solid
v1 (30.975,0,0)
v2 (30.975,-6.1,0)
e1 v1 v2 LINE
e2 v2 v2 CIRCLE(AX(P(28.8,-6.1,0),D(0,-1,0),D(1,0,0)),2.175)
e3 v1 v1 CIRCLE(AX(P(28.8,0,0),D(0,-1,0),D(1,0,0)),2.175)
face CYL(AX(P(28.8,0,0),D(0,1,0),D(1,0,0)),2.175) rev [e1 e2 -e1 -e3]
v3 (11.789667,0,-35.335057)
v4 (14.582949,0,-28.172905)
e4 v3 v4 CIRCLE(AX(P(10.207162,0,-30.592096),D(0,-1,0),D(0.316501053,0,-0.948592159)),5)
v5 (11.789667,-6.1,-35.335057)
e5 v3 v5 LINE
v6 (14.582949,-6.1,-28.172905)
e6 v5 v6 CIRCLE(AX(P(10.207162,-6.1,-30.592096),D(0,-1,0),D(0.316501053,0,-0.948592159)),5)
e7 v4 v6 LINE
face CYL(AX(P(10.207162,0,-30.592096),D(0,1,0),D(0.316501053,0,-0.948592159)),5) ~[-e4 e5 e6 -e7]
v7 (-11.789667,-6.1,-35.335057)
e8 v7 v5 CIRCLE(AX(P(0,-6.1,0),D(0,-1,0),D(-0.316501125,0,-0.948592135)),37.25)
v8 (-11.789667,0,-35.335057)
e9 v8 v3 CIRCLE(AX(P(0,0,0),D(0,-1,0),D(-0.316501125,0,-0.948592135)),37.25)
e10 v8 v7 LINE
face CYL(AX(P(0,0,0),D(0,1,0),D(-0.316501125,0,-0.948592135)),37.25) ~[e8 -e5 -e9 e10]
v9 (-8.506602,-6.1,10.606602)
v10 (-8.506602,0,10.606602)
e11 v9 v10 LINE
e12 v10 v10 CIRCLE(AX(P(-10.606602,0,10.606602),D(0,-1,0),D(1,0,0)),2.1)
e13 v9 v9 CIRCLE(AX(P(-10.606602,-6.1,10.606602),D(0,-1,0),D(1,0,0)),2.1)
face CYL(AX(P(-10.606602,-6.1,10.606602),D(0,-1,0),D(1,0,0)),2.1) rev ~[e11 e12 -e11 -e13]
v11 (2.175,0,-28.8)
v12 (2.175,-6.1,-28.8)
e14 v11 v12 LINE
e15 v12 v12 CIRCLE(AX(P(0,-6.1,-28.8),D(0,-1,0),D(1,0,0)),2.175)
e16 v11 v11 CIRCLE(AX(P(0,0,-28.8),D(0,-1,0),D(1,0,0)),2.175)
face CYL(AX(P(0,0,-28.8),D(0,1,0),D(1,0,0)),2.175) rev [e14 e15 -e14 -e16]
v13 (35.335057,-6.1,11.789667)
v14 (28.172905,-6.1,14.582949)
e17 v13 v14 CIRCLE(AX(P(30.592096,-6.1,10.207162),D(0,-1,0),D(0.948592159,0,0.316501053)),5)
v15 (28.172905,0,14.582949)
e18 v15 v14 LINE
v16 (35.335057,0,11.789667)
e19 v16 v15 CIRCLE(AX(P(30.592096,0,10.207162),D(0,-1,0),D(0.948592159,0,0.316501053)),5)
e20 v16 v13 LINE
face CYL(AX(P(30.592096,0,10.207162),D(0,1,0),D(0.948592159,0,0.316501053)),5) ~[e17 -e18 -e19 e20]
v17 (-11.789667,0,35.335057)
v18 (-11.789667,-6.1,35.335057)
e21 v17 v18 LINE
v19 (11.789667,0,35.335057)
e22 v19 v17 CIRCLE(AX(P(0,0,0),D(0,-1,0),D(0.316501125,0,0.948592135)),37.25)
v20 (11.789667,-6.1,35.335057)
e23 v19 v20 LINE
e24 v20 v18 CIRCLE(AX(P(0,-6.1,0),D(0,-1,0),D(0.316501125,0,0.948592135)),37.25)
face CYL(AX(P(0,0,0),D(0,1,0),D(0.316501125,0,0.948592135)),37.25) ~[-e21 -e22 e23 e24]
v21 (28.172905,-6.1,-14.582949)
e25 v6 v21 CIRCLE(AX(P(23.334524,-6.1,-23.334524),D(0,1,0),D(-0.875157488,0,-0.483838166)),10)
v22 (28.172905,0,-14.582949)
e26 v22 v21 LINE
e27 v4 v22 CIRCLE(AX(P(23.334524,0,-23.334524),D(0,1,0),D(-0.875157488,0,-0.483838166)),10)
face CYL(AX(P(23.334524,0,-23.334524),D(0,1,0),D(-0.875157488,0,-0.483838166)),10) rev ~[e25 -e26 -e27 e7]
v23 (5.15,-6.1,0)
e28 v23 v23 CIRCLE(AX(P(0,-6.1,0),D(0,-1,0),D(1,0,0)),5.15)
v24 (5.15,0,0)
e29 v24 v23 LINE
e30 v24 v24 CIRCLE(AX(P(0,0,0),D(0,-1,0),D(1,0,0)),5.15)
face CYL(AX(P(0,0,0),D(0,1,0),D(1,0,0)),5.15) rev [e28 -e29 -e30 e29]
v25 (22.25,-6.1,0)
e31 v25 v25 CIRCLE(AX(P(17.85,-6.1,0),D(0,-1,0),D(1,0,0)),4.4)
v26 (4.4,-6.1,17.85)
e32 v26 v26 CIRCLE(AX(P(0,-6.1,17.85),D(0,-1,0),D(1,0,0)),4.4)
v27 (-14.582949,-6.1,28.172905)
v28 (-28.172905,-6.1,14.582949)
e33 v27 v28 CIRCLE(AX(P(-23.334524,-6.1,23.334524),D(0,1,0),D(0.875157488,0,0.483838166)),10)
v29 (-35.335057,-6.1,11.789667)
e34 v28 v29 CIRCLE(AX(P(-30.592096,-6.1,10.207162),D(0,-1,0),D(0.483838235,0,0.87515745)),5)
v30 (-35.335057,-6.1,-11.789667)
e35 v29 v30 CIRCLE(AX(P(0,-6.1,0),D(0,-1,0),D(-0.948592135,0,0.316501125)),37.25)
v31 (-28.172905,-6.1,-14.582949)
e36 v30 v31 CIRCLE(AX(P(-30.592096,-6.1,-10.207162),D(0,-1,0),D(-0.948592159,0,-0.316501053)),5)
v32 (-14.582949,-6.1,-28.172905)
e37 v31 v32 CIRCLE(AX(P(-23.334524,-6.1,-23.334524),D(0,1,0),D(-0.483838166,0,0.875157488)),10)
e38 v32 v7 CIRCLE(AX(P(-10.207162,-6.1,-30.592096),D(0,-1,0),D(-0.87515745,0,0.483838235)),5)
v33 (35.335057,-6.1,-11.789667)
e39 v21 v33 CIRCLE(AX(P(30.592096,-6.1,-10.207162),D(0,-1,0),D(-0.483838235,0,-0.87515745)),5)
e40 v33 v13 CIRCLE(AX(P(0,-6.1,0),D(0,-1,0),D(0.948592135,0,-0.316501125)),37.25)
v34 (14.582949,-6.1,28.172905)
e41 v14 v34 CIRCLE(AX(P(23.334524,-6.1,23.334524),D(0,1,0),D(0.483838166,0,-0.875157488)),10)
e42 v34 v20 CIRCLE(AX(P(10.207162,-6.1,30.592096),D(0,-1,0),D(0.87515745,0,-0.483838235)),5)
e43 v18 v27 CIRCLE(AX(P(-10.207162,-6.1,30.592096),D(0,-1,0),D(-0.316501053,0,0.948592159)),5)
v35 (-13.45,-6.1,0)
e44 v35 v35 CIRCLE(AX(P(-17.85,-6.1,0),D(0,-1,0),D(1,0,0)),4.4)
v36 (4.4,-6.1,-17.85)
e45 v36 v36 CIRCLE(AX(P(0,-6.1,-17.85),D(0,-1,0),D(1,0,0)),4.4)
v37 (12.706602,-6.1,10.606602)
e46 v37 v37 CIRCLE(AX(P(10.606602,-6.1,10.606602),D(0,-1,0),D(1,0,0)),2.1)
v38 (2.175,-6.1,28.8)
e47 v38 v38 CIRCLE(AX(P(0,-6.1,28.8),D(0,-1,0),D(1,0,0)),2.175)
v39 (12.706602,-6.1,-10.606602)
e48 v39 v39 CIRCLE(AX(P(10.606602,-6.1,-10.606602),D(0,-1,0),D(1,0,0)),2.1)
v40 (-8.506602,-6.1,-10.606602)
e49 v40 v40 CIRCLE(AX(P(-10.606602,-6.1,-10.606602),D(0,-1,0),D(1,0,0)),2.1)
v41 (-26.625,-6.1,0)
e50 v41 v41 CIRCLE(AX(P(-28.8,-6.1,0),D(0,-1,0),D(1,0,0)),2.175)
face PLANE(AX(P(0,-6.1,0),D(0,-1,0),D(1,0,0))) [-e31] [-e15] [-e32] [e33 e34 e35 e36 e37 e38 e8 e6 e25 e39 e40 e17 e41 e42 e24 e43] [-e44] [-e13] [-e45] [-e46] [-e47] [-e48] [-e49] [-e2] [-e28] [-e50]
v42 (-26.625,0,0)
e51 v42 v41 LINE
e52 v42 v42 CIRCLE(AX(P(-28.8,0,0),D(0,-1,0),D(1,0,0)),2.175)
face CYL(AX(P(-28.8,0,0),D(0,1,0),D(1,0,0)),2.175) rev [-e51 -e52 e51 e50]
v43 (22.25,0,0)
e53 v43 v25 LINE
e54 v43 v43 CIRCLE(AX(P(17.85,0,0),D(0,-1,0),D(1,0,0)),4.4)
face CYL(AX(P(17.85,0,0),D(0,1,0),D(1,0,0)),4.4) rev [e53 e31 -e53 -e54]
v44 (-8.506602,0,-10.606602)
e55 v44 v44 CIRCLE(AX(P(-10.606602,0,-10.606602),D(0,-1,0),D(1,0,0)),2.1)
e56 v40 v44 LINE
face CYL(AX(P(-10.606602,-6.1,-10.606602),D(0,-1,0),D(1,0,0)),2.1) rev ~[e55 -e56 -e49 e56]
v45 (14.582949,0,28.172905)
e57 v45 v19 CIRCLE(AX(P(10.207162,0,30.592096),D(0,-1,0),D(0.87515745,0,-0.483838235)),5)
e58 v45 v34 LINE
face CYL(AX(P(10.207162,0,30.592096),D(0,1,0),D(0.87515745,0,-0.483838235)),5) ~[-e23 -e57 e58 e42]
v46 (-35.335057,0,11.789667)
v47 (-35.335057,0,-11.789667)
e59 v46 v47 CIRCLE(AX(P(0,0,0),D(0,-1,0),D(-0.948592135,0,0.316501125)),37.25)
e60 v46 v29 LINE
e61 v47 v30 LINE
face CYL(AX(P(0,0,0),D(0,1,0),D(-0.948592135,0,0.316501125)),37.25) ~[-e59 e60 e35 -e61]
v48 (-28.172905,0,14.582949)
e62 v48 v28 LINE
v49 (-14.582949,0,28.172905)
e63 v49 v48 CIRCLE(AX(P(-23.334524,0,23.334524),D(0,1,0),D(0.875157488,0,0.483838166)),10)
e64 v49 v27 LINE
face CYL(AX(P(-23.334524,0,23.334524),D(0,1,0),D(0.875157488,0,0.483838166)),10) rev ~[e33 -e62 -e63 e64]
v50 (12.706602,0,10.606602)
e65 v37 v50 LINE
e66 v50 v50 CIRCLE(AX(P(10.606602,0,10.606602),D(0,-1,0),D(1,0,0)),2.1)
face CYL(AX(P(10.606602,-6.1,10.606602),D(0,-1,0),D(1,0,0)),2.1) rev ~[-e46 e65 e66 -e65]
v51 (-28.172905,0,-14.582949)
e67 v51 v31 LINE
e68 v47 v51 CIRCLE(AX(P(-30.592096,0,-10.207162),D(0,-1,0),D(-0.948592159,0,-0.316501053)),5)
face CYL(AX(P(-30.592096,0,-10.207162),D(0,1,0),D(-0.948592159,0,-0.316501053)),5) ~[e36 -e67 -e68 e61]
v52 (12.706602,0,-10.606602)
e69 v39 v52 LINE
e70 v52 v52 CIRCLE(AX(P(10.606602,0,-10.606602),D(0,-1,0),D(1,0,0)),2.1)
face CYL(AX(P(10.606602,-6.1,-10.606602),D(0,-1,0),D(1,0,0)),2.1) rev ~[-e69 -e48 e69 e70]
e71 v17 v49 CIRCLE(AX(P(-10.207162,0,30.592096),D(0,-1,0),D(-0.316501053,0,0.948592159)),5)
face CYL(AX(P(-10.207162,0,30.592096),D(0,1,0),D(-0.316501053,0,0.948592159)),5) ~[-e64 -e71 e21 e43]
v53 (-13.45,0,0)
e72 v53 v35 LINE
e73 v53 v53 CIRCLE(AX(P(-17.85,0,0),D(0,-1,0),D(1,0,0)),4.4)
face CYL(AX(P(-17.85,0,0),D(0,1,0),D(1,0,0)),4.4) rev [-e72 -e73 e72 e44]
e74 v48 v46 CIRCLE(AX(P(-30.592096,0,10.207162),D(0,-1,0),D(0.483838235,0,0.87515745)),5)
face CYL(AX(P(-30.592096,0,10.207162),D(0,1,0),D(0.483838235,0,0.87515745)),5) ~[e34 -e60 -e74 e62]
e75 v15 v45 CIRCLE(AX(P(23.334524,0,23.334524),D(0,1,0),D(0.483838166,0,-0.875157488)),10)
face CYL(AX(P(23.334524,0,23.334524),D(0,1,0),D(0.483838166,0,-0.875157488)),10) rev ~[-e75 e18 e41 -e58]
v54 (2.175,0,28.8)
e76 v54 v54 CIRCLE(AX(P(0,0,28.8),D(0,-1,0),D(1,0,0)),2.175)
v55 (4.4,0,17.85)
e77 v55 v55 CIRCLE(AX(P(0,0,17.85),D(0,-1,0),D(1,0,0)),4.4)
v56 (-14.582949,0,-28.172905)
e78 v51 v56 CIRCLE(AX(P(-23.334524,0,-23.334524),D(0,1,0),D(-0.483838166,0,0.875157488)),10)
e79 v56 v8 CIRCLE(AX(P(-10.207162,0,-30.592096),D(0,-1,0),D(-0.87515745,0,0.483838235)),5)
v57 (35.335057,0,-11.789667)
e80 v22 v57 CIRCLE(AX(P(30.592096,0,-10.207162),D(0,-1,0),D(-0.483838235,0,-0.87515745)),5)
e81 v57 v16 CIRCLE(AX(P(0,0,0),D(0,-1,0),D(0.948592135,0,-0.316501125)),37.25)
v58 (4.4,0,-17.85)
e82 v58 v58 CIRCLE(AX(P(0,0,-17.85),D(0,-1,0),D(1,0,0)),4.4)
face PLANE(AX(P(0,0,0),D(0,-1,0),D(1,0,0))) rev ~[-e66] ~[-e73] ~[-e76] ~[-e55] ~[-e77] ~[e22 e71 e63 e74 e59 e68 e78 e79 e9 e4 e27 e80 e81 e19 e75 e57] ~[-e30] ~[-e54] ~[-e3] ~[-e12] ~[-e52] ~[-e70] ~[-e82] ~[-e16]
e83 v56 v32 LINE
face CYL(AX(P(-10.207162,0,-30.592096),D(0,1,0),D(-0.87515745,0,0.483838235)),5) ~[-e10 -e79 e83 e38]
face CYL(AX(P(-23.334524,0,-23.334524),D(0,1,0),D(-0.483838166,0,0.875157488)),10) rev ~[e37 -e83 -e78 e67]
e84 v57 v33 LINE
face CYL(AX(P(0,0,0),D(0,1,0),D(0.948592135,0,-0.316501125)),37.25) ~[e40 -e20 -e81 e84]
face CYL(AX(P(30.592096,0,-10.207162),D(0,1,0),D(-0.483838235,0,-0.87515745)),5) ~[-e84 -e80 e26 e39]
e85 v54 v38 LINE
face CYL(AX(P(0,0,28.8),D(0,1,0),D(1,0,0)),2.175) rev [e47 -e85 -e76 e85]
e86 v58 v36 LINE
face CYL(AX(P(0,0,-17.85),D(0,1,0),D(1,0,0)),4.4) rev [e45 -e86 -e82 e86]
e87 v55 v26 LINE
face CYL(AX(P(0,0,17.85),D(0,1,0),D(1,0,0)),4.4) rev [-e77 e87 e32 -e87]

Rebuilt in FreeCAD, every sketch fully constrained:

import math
import FreeCAD as App
import Part
import Sketcher

V = App.Vector
Q = App.Units.Quantity

doc = App.newDocument("Part")
body = doc.addObject("PartDesign::Body", "Body")

# Sketch on XZ plane
sketch1 = body.newObject("Sketcher::SketchObject", "Sketch")
sketch1.AttachmentSupport = (doc.getObject("XZ_Plane"), [""])
sketch1.MapMode = "FlatFace"
sketch1.addGeometry(Part.ArcOfCircle(Part.Circle(V(-30.6, 10.2, 0), V(0, 0, 1), 5), math.radians(61), math.radians(162)), False)
sketch1.addGeometry(Part.ArcOfCircle(Part.Circle(V(0, 0, 0), V(0, 0, 1), 37.3), math.radians(162), math.radians(198)), False)
sketch1.addGeometry(Part.ArcOfCircle(Part.Circle(V(-30.6, -10.2, 0), V(0, 0, 1), 5), math.radians(-162), math.radians(-61)), False)
sketch1.addGeometry(Part.ArcOfCircle(Part.Circle(V(-23.3, -23.3, 0), V(0, 0, 1), 10), math.radians(-29), math.radians(119)), False)
sketch1.addGeometry(Part.ArcOfCircle(Part.Circle(V(-10.2, -30.6, 0), V(0, 0, 1), 5), math.radians(151), math.radians(252)), False)
sketch1.addGeometry(Part.ArcOfCircle(Part.Circle(V(0, 0, 0), V(0, 0, 1), 37.3), math.radians(-108), math.radians(-72)), False)
sketch1.addGeometry(Part.ArcOfCircle(Part.Circle(V(10.2, -30.6, 0), V(0, 0, 1), 5), math.radians(-72), math.radians(29)), False)
sketch1.addGeometry(Part.ArcOfCircle(Part.Circle(V(23.3, -23.3, 0), V(0, 0, 1), 10), math.radians(61), math.radians(209)), False)
sketch1.addGeometry(Part.ArcOfCircle(Part.Circle(V(30.6, -10.2, 0), V(0, 0, 1), 5), math.radians(-119), math.radians(-18)), False)
sketch1.addGeometry(Part.ArcOfCircle(Part.Circle(V(0, 0, 0), V(0, 0, 1), 37.3), math.radians(-18), math.radians(18)), False)
sketch1.addGeometry(Part.ArcOfCircle(Part.Circle(V(30.6, 10.2, 0), V(0, 0, 1), 5), math.radians(18), math.radians(119)), False)
sketch1.addGeometry(Part.ArcOfCircle(Part.Circle(V(23.3, 23.3, 0), V(0, 0, 1), 10), math.radians(151), math.radians(299)), False)
sketch1.addGeometry(Part.ArcOfCircle(Part.Circle(V(10.2, 30.6, 0), V(0, 0, 1), 5), math.radians(-29), math.radians(72)), False)
sketch1.addGeometry(Part.ArcOfCircle(Part.Circle(V(0, 0, 0), V(0, 0, 1), 37.3), math.radians(72), math.radians(108)), False)
sketch1.addGeometry(Part.ArcOfCircle(Part.Circle(V(-10.2, 30.6, 0), V(0, 0, 1), 5), math.radians(108), math.radians(209)), False)
sketch1.addGeometry(Part.ArcOfCircle(Part.Circle(V(-23.3, 23.3, 0), V(0, 0, 1), 10), math.radians(-119), math.radians(29)), False)
sketch1.addGeometry(Part.Circle(V(0, -28.8, 0), V(0, 0, 1), 2.2), False)
sketch1.addGeometry(Part.Circle(V(0, -17.9, 0), V(0, 0, 1), 4.4), False)
sketch1.addGeometry(Part.Circle(V(-28.8, 0, 0), V(0, 0, 1), 2.2), False)
sketch1.addGeometry(Part.Circle(V(-17.9, 0, 0), V(0, 0, 1), 4.4), False)
sketch1.addGeometry(Part.Circle(V(0, 0, 0), V(0, 0, 1), 5.2), False)
sketch1.addGeometry(Part.Circle(V(17.9, 0, 0), V(0, 0, 1), 4.4), False)
sketch1.addGeometry(Part.Circle(V(28.8, 0, 0), V(0, 0, 1), 2.2), False)
sketch1.addGeometry(Part.Circle(V(0, 17.9, 0), V(0, 0, 1), 4.4), False)
sketch1.addGeometry(Part.Circle(V(0, 28.8, 0), V(0, 0, 1), 2.2), False)
sketch1.addConstraint(Sketcher.Constraint("Tangent", 0, 2, 1, 1))
sketch1.addConstraint(Sketcher.Constraint("Tangent", 1, 2, 2, 1))
sketch1.addConstraint(Sketcher.Constraint("Tangent", 2, 2, 3, 2))
sketch1.addConstraint(Sketcher.Constraint("Tangent", 3, 1, 4, 1))
sketch1.addConstraint(Sketcher.Constraint("Tangent", 4, 2, 5, 1))
sketch1.addConstraint(Sketcher.Constraint("Tangent", 5, 2, 6, 1))
sketch1.addConstraint(Sketcher.Constraint("Tangent", 6, 2, 7, 2))
sketch1.addConstraint(Sketcher.Constraint("Tangent", 7, 1, 8, 1))
sketch1.addConstraint(Sketcher.Constraint("Tangent", 8, 2, 9, 1))
sketch1.addConstraint(Sketcher.Constraint("Tangent", 9, 2, 10, 1))
sketch1.addConstraint(Sketcher.Constraint("Tangent", 10, 2, 11, 2))
sketch1.addConstraint(Sketcher.Constraint("Tangent", 11, 1, 12, 1))
sketch1.addConstraint(Sketcher.Constraint("Tangent", 12, 2, 13, 1))
sketch1.addConstraint(Sketcher.Constraint("Tangent", 13, 2, 14, 1))
sketch1.addConstraint(Sketcher.Constraint("Tangent", 14, 2, 15, 2))
sketch1.addConstraint(Sketcher.Constraint("Tangent", 15, 1, 0, 1))
sketch1.addConstraint(Sketcher.Constraint("Coincident", 1, 3, -1, 1))
sketch1.addConstraint(Sketcher.Constraint("Coincident", 5, 3, -1, 1))
sketch1.addConstraint(Sketcher.Constraint("Coincident", 9, 3, -1, 1))
sketch1.addConstraint(Sketcher.Constraint("Coincident", 13, 3, -1, 1))
sketch1.addConstraint(Sketcher.Constraint("Coincident", 20, 3, -1, 1))
sketch1.addConstraint(Sketcher.Constraint("Equal", 0, 2))
sketch1.addConstraint(Sketcher.Constraint("Equal", 2, 4))
sketch1.addConstraint(Sketcher.Constraint("Equal", 1, 5))
sketch1.addConstraint(Sketcher.Constraint("Equal", 4, 6))
sketch1.addConstraint(Sketcher.Constraint("Equal", 3, 7))
sketch1.addConstraint(Sketcher.Constraint("Equal", 6, 8))
sketch1.addConstraint(Sketcher.Constraint("Equal", 5, 9))
sketch1.addConstraint(Sketcher.Constraint("Equal", 8, 10))
sketch1.addConstraint(Sketcher.Constraint("Equal", 7, 11))
sketch1.addConstraint(Sketcher.Constraint("Equal", 10, 12))
sketch1.addConstraint(Sketcher.Constraint("Equal", 9, 13))
sketch1.addConstraint(Sketcher.Constraint("Equal", 12, 14))
sketch1.addConstraint(Sketcher.Constraint("Equal", 11, 15))
sketch1.addConstraint(Sketcher.Constraint("Equal", 16, 18))
sketch1.addConstraint(Sketcher.Constraint("Equal", 17, 19))
sketch1.addConstraint(Sketcher.Constraint("Equal", 19, 21))
sketch1.addConstraint(Sketcher.Constraint("Equal", 18, 22))
sketch1.addConstraint(Sketcher.Constraint("Equal", 21, 23))
sketch1.addConstraint(Sketcher.Constraint("Equal", 22, 24))
sketch1.addConstraint(Sketcher.Constraint("Symmetric", 3, 3, 11, 3, -1, 1))
sketch1.addConstraint(Sketcher.Constraint("Symmetric", 7, 3, 15, 3, -1, 1))
sketch1.addConstraint(Sketcher.Constraint("Symmetric", 19, 3, 21, 3, -1, 1))
sketch1.addConstraint(Sketcher.Constraint("Symmetric", 18, 3, 22, 3, -1, 1))
sketch1.addConstraint(Sketcher.Constraint("Symmetric", 17, 3, 23, 3, -1, 1))
sketch1.addConstraint(Sketcher.Constraint("Symmetric", 16, 3, 24, 3, -1, 1))
sketch1.addConstraint(Sketcher.Constraint("Symmetric", 3, 3, 7, 3, -2))
sketch1.addConstraint(Sketcher.Constraint("PointOnObject", 16, 3, -2))
sketch1.addConstraint(Sketcher.Constraint("PointOnObject", 17, 3, -2))
sketch1.addConstraint(Sketcher.Constraint("PointOnObject", 18, 3, -1))
sketch1.addConstraint(Sketcher.Constraint("PointOnObject", 19, 3, -1))
sketch1.addConstraint(Sketcher.Constraint("Radius", 0, Q("5 mm")))
sketch1.addConstraint(Sketcher.Constraint("Radius", 3, Q("10 mm")))
sketch1.addConstraint(Sketcher.Constraint("Diameter", 17, Q("8.8 mm")))
sketch1.addConstraint(Sketcher.Constraint("Diameter", 20, Q("10.3 mm")))
sketch1.addConstraint(Sketcher.Constraint("Diameter", 16, Q("4.35 mm")))
sketch1.addConstraint(Sketcher.Constraint("Radius", 1, Q("37.25 mm")))
sketch1.addConstraint(Sketcher.Constraint("DistanceY", 16, 3, -1, 1, Q("28.8 mm")))
sketch1.addConstraint(Sketcher.Constraint("DistanceX", 18, 3, -1, 1, Q("28.8 mm")))
sketch1.addConstraint(Sketcher.Constraint("DistanceY", 17, 3, -1, 1, Q("17.85 mm")))
sketch1.addConstraint(Sketcher.Constraint("DistanceX", 19, 3, -1, 1, Q("17.85 mm")))
sketch1.addConstraint(Sketcher.Constraint("DistanceY", -1, 1, 0, 3, Q("10.207162 mm")))
sketch1.addConstraint(Sketcher.Constraint("DistanceX", 4, 3, -1, 1, Q("10.207162 mm")))
pad1 = body.newObject("PartDesign::Pad", "Pad")
pad1.Profile = sketch1
pad1.Length = 6.1

# Sketch on XZ plane
sketch2 = body.newObject("Sketcher::SketchObject", "Sketch001")
sketch2.AttachmentSupport = (doc.getObject("XZ_Plane"), [""])
sketch2.MapMode = "FlatFace"
sketch2.AttachmentOffset = App.Placement(V(0, 0, 6.1), App.Rotation())
sketch2.addGeometry(Part.Circle(V(-10.6, 10.6, 0), V(0, 0, 1), 2.1), False)
sketch2.addGeometry(Part.Circle(V(-10.6, -10.6, 0), V(0, 0, 1), 2.1), False)
sketch2.addGeometry(Part.Circle(V(10.6, -10.6, 0), V(0, 0, 1), 2.1), False)
sketch2.addGeometry(Part.Circle(V(10.6, 10.6, 0), V(0, 0, 1), 2.1), False)
sketch2.addConstraint(Sketcher.Constraint("Equal", 0, 1))
sketch2.addConstraint(Sketcher.Constraint("Equal", 1, 2))
sketch2.addConstraint(Sketcher.Constraint("Equal", 2, 3))
sketch2.addConstraint(Sketcher.Constraint("Symmetric", 0, 3, 2, 3, -1, 1))
sketch2.addConstraint(Sketcher.Constraint("Symmetric", 1, 3, 3, 3, -1, 1))
sketch2.addConstraint(Sketcher.Constraint("Symmetric", 1, 3, 2, 3, -2))
sketch2.addConstraint(Sketcher.Constraint("Diameter", 0, Q("4.2 mm")))
sketch2.addConstraint(Sketcher.Constraint("DistanceX", 0, 3, -1, 1, Q("10.606602 mm")))
sketch2.addConstraint(Sketcher.Constraint("DistanceY", -1, 1, 0, 3, Q("10.606602 mm")))
pocket1 = body.newObject("PartDesign::Pocket", "Pocket")
pocket1.Profile = sketch2
pocket1.Type = "ThroughAll"

doc.recompute()
